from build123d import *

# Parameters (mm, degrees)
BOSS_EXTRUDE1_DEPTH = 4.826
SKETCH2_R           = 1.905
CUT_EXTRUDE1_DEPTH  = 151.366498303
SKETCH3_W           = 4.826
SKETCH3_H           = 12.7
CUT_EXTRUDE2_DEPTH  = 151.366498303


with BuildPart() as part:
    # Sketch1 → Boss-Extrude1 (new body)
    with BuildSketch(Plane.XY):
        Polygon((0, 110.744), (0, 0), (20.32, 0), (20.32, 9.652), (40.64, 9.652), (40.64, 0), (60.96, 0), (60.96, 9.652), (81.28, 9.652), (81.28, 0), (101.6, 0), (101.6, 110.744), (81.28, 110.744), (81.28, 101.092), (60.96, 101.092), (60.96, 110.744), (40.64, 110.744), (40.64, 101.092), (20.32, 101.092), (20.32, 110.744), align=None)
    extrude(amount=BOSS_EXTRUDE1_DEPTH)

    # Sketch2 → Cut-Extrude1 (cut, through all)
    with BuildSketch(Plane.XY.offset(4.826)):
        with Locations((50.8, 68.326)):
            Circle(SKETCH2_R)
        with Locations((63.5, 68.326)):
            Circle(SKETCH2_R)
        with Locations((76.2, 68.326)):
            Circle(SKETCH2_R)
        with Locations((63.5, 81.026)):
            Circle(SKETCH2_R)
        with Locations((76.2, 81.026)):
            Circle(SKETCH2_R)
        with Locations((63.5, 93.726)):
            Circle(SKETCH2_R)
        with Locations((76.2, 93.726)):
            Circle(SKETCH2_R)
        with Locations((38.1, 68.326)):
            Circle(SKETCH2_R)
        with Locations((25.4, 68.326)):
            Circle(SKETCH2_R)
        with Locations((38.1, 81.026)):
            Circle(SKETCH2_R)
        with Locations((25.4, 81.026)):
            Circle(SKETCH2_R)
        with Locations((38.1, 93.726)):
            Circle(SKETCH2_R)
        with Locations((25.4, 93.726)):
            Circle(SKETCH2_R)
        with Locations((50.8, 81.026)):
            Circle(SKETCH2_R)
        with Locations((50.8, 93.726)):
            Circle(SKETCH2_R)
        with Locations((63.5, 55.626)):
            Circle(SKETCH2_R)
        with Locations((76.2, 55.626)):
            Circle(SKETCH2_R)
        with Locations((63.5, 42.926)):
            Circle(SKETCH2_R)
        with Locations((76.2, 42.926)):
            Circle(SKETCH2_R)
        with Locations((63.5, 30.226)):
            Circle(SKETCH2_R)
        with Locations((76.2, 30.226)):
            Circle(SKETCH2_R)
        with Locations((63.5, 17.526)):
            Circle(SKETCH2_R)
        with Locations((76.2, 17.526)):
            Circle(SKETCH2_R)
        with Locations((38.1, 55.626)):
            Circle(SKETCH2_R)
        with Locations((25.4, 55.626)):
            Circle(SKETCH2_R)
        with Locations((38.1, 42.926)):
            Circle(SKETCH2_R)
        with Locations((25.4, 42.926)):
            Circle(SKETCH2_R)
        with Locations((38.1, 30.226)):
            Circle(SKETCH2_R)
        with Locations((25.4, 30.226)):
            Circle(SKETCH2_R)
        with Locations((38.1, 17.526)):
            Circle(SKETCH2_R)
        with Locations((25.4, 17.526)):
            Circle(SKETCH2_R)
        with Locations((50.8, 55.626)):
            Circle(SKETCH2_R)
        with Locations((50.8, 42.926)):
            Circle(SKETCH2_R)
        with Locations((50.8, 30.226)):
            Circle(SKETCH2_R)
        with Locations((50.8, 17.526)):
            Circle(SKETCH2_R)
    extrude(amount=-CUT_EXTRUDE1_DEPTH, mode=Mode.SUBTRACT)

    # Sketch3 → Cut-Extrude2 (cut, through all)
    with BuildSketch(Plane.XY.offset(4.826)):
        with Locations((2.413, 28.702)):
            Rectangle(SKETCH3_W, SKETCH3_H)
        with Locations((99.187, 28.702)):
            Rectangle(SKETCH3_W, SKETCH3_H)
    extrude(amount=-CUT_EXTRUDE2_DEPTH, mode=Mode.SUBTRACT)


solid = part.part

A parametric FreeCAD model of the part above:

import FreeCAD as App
import Part
import Sketcher
Q = App.Units.Quantity

doc = App.newDocument("Part")
params = doc.addObject("Spreadsheet::Sheet", "Params")
for row, (alias, value) in enumerate([
    ("sketch1_width", "0.8 in"),
    ("sketch1_height", "4.36 in"),
    ("sketch1_height2", "0.38 in"),
    ("pad1_length", "0.19 in"),
    ("sketch2_diameter", "0.15 in"),
    ("sketch3_height", "0.5 in"),
    ("sketch3_width", "0.19 in"),
], start=1):
    params.set(f"A{row}", alias)
    params.set(f"B{row}", "=" + value)
    params.setAlias(f"B{row}", alias)

body = doc.addObject("PartDesign::Body", "Body")

sketch1 = body.newObject("Sketcher::SketchObject", "Sketch")
sketch1.AttachmentSupport = (doc.getObject("XY_Plane"), [""])
sketch1.MapMode = "FlatFace"
sketch1.addGeometry(Part.LineSegment(App.Vector(0, 111, 0), App.Vector(0, 0, 0)), False)
sketch1.addGeometry(Part.LineSegment(App.Vector(0, 0, 0), App.Vector(20, 0, 0)), False)
sketch1.addGeometry(Part.LineSegment(App.Vector(20, 0, 0), App.Vector(20, 10, 0)), False)
sketch1.addGeometry(Part.LineSegment(App.Vector(20, 10, 0), App.Vector(41, 10, 0)), False)
sketch1.addGeometry(Part.LineSegment(App.Vector(41, 10, 0), App.Vector(41, 0, 0)), False)
sketch1.addGeometry(Part.LineSegment(App.Vector(41, 0, 0), App.Vector(61, 0, 0)), False)
sketch1.addGeometry(Part.LineSegment(App.Vector(61, 0, 0), App.Vector(61, 10, 0)), False)
sketch1.addGeometry(Part.LineSegment(App.Vector(61, 10, 0), App.Vector(81, 10, 0)), False)
sketch1.addGeometry(Part.LineSegment(App.Vector(81, 10, 0), App.Vector(81, 0, 0)), False)
sketch1.addGeometry(Part.LineSegment(App.Vector(81, 0, 0), App.Vector(102, 0, 0)), False)
sketch1.addGeometry(Part.LineSegment(App.Vector(102, 0, 0), App.Vector(102, 111, 0)), False)
sketch1.addGeometry(Part.LineSegment(App.Vector(102, 111, 0), App.Vector(81, 111, 0)), False)
sketch1.addGeometry(Part.LineSegment(App.Vector(81, 111, 0), App.Vector(81, 101, 0)), False)
sketch1.addGeometry(Part.LineSegment(App.Vector(81, 101, 0), App.Vector(61, 101, 0)), False)
sketch1.addGeometry(Part.LineSegment(App.Vector(61, 101, 0), App.Vector(61, 111, 0)), False)
sketch1.addGeometry(Part.LineSegment(App.Vector(61, 111, 0), App.Vector(41, 111, 0)), False)
sketch1.addGeometry(Part.LineSegment(App.Vector(41, 111, 0), App.Vector(41, 101, 0)), False)
sketch1.addGeometry(Part.LineSegment(App.Vector(41, 101, 0), App.Vector(20, 101, 0)), False)
sketch1.addGeometry(Part.LineSegment(App.Vector(20, 101, 0), App.Vector(20, 111, 0)), False)
sketch1.addGeometry(Part.LineSegment(App.Vector(20, 111, 0), App.Vector(0, 111, 0)), False)
sketch1.addConstraint(Sketcher.Constraint("Coincident", 0, 2, 1, 1))
sketch1.addConstraint(Sketcher.Constraint("Coincident", 1, 2, 2, 1))
sketch1.addConstraint(Sketcher.Constraint("Coincident", 2, 2, 3, 1))
sketch1.addConstraint(Sketcher.Constraint("Coincident", 3, 2, 4, 1))
sketch1.addConstraint(Sketcher.Constraint("Coincident", 4, 2, 5, 1))
sketch1.addConstraint(Sketcher.Constraint("Coincident", 5, 2, 6, 1))
sketch1.addConstraint(Sketcher.Constraint("Coincident", 6, 2, 7, 1))
sketch1.addConstraint(Sketcher.Constraint("Coincident", 7, 2, 8, 1))
sketch1.addConstraint(Sketcher.Constraint("Coincident", 8, 2, 9, 1))
sketch1.addConstraint(Sketcher.Constraint("Coincident", 9, 2, 10, 1))
sketch1.addConstraint(Sketcher.Constraint("Coincident", 10, 2, 11, 1))
sketch1.addConstraint(Sketcher.Constraint("Coincident", 11, 2, 12, 1))
sketch1.addConstraint(Sketcher.Constraint("Coincident", 12, 2, 13, 1))
sketch1.addConstraint(Sketcher.Constraint("Coincident", 13, 2, 14, 1))
sketch1.addConstraint(Sketcher.Constraint("Coincident", 14, 2, 15, 1))
sketch1.addConstraint(Sketcher.Constraint("Coincident", 15, 2, 16, 1))
sketch1.addConstraint(Sketcher.Constraint("Coincident", 16, 2, 17, 1))
sketch1.addConstraint(Sketcher.Constraint("Coincident", 17, 2, 18, 1))
sketch1.addConstraint(Sketcher.Constraint("Coincident", 18, 2, 19, 1))
sketch1.addConstraint(Sketcher.Constraint("Coincident", 19, 2, 0, 1))
sketch1.addConstraint(Sketcher.Constraint("Vertical", 0))
sketch1.addConstraint(Sketcher.Constraint("Horizontal", 1))
sketch1.addConstraint(Sketcher.Constraint("Vertical", 2))
sketch1.addConstraint(Sketcher.Constraint("Horizontal", 3))
sketch1.addConstraint(Sketcher.Constraint("Vertical", 4))
sketch1.addConstraint(Sketcher.Constraint("Horizontal", 5))
sketch1.addConstraint(Sketcher.Constraint("Vertical", 6))
sketch1.addConstraint(Sketcher.Constraint("Horizontal", 7))
sketch1.addConstraint(Sketcher.Constraint("Vertical", 8))
sketch1.addConstraint(Sketcher.Constraint("Horizontal", 9))
sketch1.addConstraint(Sketcher.Constraint("Vertical", 10))
sketch1.addConstraint(Sketcher.Constraint("Horizontal", 11))
sketch1.addConstraint(Sketcher.Constraint("Vertical", 12))
sketch1.addConstraint(Sketcher.Constraint("Horizontal", 13))
sketch1.addConstraint(Sketcher.Constraint("Vertical", 14))
sketch1.addConstraint(Sketcher.Constraint("Horizontal", 15))
sketch1.addConstraint(Sketcher.Constraint("Vertical", 16))
sketch1.addConstraint(Sketcher.Constraint("Horizontal", 17))
sketch1.addConstraint(Sketcher.Constraint("Vertical", 18))
sketch1.addConstraint(Sketcher.Constraint("Horizontal", 19))
sketch1.addConstraint(Sketcher.Constraint("Coincident", 0, 2, -1, 1))
sketch1.addConstraint(Sketcher.Constraint("PointOnObject", 4, 2, -1))
sketch1.addConstraint(Sketcher.Constraint("PointOnObject", 8, 2, -1))
sketch1.addConstraint(Sketcher.Constraint("Horizontal", 3, 2, 6, 2))
sketch1.addConstraint(Sketcher.Constraint("Horizontal", 11, 2, 14, 2))
sketch1.addConstraint(Sketcher.Constraint("Horizontal", 13, 2, 16, 2))
sketch1.addConstraint(Sketcher.Constraint("Horizontal", 15, 2, 18, 2))
sketch1.addConstraint(Sketcher.Constraint("Vertical", 8, 2, 11, 2))
sketch1.addConstraint(Sketcher.Constraint("Vertical", 6, 2, 13, 2))
sketch1.addConstraint(Sketcher.Constraint("Vertical", 4, 2, 15, 2))
sketch1.addConstraint(Sketcher.Constraint("Vertical", 2, 2, 17, 2))
sketch1.addConstraint(Sketcher.Constraint("Equal", 1, 3))
sketch1.addConstraint(Sketcher.Constraint("Equal", 3, 5))
sketch1.addConstraint(Sketcher.Constraint("Equal", 5, 7))
sketch1.addConstraint(Sketcher.Constraint("Equal", 7, 9))
sketch1.addConstraint(Sketcher.Constraint("Equal", 8, 12))
sketch1.addConstraint(Sketcher.Constraint("DistanceX", 1, 1, 1, 2, Q("0.8 in")))
sketch1.addConstraint(Sketcher.Constraint("DistanceY", 0, 2, 0, 1, Q("4.36 in")))
sketch1.addConstraint(Sketcher.Constraint("DistanceY", 2, 1, 2, 2, Q("0.38 in")))
sketch1.setExpression("Constraints[56]", "Params.sketch1_width")
sketch1.setExpression("Constraints[57]", "Params.sketch1_height")
sketch1.setExpression("Constraints[58]", "Params.sketch1_height2")
pad1 = body.newObject("PartDesign::Pad", "Pad")
pad1.Profile = sketch1
pad1.setExpression("Length", "Params.pad1_length")

sketch2 = body.newObject("Sketcher::SketchObject", "Sketch001")
sketch2.AttachmentSupport = (doc.getObject("XY_Plane"), [""])
sketch2.MapMode = "FlatFace"
sketch2.AttachmentOffset = App.Placement(App.Vector(0, 0, 0.19 * 25.4), App.Rotation())
sketch2.addGeometry(Part.Circle(App.Vector(50.8, 68.3, 0), App.Vector(0, 0, 1), 1.9), False)
sketch2.addGeometry(Part.Circle(App.Vector(63.5, 68.3, 0), App.Vector(0, 0, 1), 1.9), False)
sketch2.addGeometry(Part.Circle(App.Vector(76.2, 68.3, 0), App.Vector(0, 0, 1), 1.9), False)
sketch2.addGeometry(Part.Circle(App.Vector(63.5, 81, 0), App.Vector(0, 0, 1), 1.9), False)
sketch2.addGeometry(Part.Circle(App.Vector(76.2, 81, 0), App.Vector(0, 0, 1), 1.9), False)
sketch2.addGeometry(Part.Circle(App.Vector(63.5, 93.7, 0), App.Vector(0, 0, 1), 1.9), False)
sketch2.addGeometry(Part.Circle(App.Vector(76.2, 93.7, 0), App.Vector(0, 0, 1), 1.9), False)
sketch2.addGeometry(Part.Circle(App.Vector(38.1, 68.3, 0), App.Vector(0, 0, 1), 1.9), False)
sketch2.addGeometry(Part.Circle(App.Vector(25.4, 68.3, 0), App.Vector(0, 0, 1), 1.9), False)
sketch2.addGeometry(Part.Circle(App.Vector(38.1, 81, 0), App.Vector(0, 0, 1), 1.9), False)
sketch2.addGeometry(Part.Circle(App.Vector(25.4, 81, 0), App.Vector(0, 0, 1), 1.9), False)
sketch2.addGeometry(Part.Circle(App.Vector(38.1, 93.7, 0), App.Vector(0, 0, 1), 1.9), False)
sketch2.addGeometry(Part.Circle(App.Vector(25.4, 93.7, 0), App.Vector(0, 0, 1), 1.9), False)
sketch2.addGeometry(Part.Circle(App.Vector(50.8, 81, 0), App.Vector(0, 0, 1), 1.9), False)
sketch2.addGeometry(Part.Circle(App.Vector(50.8, 93.7, 0), App.Vector(0, 0, 1), 1.9), False)
sketch2.addGeometry(Part.Circle(App.Vector(63.5, 55.6, 0), App.Vector(0, 0, 1), 1.9), False)
sketch2.addGeometry(Part.Circle(App.Vector(76.2, 55.6, 0), App.Vector(0, 0, 1), 1.9), False)
sketch2.addGeometry(Part.Circle(App.Vector(63.5, 42.9, 0), App.Vector(0, 0, 1), 1.9), False)
sketch2.addGeometry(Part.Circle(App.Vector(76.2, 42.9, 0), App.Vector(0, 0, 1), 1.9), False)
sketch2.addGeometry(Part.Circle(App.Vector(63.5, 30.2, 0), App.Vector(0, 0, 1), 1.9), False)
sketch2.addGeometry(Part.Circle(App.Vector(76.2, 30.2, 0), App.Vector(0, 0, 1), 1.9), False)
sketch2.addGeometry(Part.Circle(App.Vector(63.5, 17.5, 0), App.Vector(0, 0, 1), 1.9), False)
sketch2.addGeometry(Part.Circle(App.Vector(76.2, 17.5, 0), App.Vector(0, 0, 1), 1.9), False)
sketch2.addGeometry(Part.Circle(App.Vector(38.1, 55.6, 0), App.Vector(0, 0, 1), 1.9), False)
sketch2.addGeometry(Part.Circle(App.Vector(25.4, 55.6, 0), App.Vector(0, 0, 1), 1.9), False)
sketch2.addGeometry(Part.Circle(App.Vector(38.1, 42.9, 0), App.Vector(0, 0, 1), 1.9), False)
sketch2.addGeometry(Part.Circle(App.Vector(25.4, 42.9, 0), App.Vector(0, 0, 1), 1.9), False)
sketch2.addGeometry(Part.Circle(App.Vector(38.1, 30.2, 0), App.Vector(0, 0, 1), 1.9), False)
sketch2.addGeometry(Part.Circle(App.Vector(25.4, 30.2, 0), App.Vector(0, 0, 1), 1.9), False)
sketch2.addGeometry(Part.Circle(App.Vector(38.1, 17.5, 0), App.Vector(0, 0, 1), 1.9), False)
sketch2.addGeometry(Part.Circle(App.Vector(25.4, 17.5, 0), App.Vector(0, 0, 1), 1.9), False)
sketch2.addGeometry(Part.Circle(App.Vector(50.8, 55.6, 0), App.Vector(0, 0, 1), 1.9), False)
sketch2.addGeometry(Part.Circle(App.Vector(50.8, 42.9, 0), App.Vector(0, 0, 1), 1.9), False)
sketch2.addGeometry(Part.Circle(App.Vector(50.8, 30.2, 0), App.Vector(0, 0, 1), 1.9), False)
sketch2.addGeometry(Part.Circle(App.Vector(50.8, 17.5, 0), App.Vector(0, 0, 1), 1.9), False)
sketch2.addConstraint(Sketcher.Constraint("Equal", 0, 1))
sketch2.addConstraint(Sketcher.Constraint("Equal", 1, 2))
sketch2.addConstraint(Sketcher.Constraint("Equal", 2, 3))
sketch2.addConstraint(Sketcher.Constraint("Equal", 3, 4))
sketch2.addConstraint(Sketcher.Constraint("Equal", 4, 5))
sketch2.addConstraint(Sketcher.Constraint("Equal", 5, 6))
sketch2.addConstraint(Sketcher.Constraint("Equal", 6, 7))
sketch2.addConstraint(Sketcher.Constraint("Equal", 7, 8))
sketch2.addConstraint(Sketcher.Constraint("Equal", 8, 9))
sketch2.addConstraint(Sketcher.Constraint("Equal", 9, 10))
sketch2.addConstraint(Sketcher.Constraint("Equal", 10, 11))
sketch2.addConstraint(Sketcher.Constraint("Equal", 11, 12))
sketch2.addConstraint(Sketcher.Constraint("Equal", 12, 13))
sketch2.addConstraint(Sketcher.Constraint("Equal", 13, 14))
sketch2.addConstraint(Sketcher.Constraint("Equal", 14, 15))
sketch2.addConstraint(Sketcher.Constraint("Equal", 15, 16))
sketch2.addConstraint(Sketcher.Constraint("Equal", 16, 17))
sketch2.addConstraint(Sketcher.Constraint("Equal", 17, 18))
sketch2.addConstraint(Sketcher.Constraint("Equal", 18, 19))
sketch2.addConstraint(Sketcher.Constraint("Equal", 19, 20))
sketch2.addConstraint(Sketcher.Constraint("Equal", 20, 21))
sketch2.addConstraint(Sketcher.Constraint("Equal", 21, 22))
sketch2.addConstraint(Sketcher.Constraint("Equal", 22, 23))
sketch2.addConstraint(Sketcher.Constraint("Equal", 23, 24))
sketch2.addConstraint(Sketcher.Constraint("Equal", 24, 25))
sketch2.addConstraint(Sketcher.Constraint("Equal", 25, 26))
sketch2.addConstraint(Sketcher.Constraint("Equal", 26, 27))
sketch2.addConstraint(Sketcher.Constraint("Equal", 27, 28))
sketch2.addConstraint(Sketcher.Constraint("Equal", 28, 29))
sketch2.addConstraint(Sketcher.Constraint("Equal", 29, 30))
sketch2.addConstraint(Sketcher.Constraint("Equal", 30, 31))
sketch2.addConstraint(Sketcher.Constraint("Equal", 31, 32))
sketch2.addConstraint(Sketcher.Constraint("Equal", 32, 33))
sketch2.addConstraint(Sketcher.Constraint("Equal", 33, 34))
sketch2.addConstraint(Sketcher.Constraint("Horizontal", 0, 3, 1, 3))
sketch2.addConstraint(Sketcher.Constraint("Horizontal", 1, 3, 2, 3))
sketch2.addConstraint(Sketcher.Constraint("Horizontal", 3, 3, 4, 3))
sketch2.addConstraint(Sketcher.Constraint("Horizontal", 5, 3, 6, 3))
sketch2.addConstraint(Sketcher.Constraint("Horizontal", 2, 3, 7, 3))
sketch2.addConstraint(Sketcher.Constraint("Horizontal", 7, 3, 8, 3))
sketch2.addConstraint(Sketcher.Constraint("Horizontal", 4, 3, 9, 3))
sketch2.addConstraint(Sketcher.Constraint("Horizontal", 9, 3, 10, 3))
sketch2.addConstraint(Sketcher.Constraint("Horizontal", 6, 3, 11, 3))
sketch2.addConstraint(Sketcher.Constraint("Horizontal", 11, 3, 12, 3))
sketch2.addConstraint(Sketcher.Constraint("Horizontal", 10, 3, 13, 3))
sketch2.addConstraint(Sketcher.Constraint("Horizontal", 12, 3, 14, 3))
sketch2.addConstraint(Sketcher.Constraint("Horizontal", 15, 3, 16, 3))
sketch2.addConstraint(Sketcher.Constraint("Horizontal", 17, 3, 18, 3))
sketch2.addConstraint(Sketcher.Constraint("Horizontal", 19, 3, 20, 3))
sketch2.addConstraint(Sketcher.Constraint("Horizontal", 21, 3, 22, 3))
sketch2.addConstraint(Sketcher.Constraint("Horizontal", 16, 3, 23, 3))
sketch2.addConstraint(Sketcher.Constraint("Horizontal", 23, 3, 24, 3))
sketch2.addConstraint(Sketcher.Constraint("Horizontal", 18, 3, 25, 3))
sketch2.addConstraint(Sketcher.Constraint("Horizontal", 25, 3, 26, 3))
sketch2.addConstraint(Sketcher.Constraint("Horizontal", 20, 3, 27, 3))
sketch2.addConstraint(Sketcher.Constraint("Horizontal", 27, 3, 28, 3))
sketch2.addConstraint(Sketcher.Constraint("Horizontal", 22, 3, 29, 3))
sketch2.addConstraint(Sketcher.Constraint("Horizontal", 29, 3, 30, 3))
sketch2.addConstraint(Sketcher.Constraint("Horizontal", 24, 3, 31, 3))
sketch2.addConstraint(Sketcher.Constraint("Horizontal", 26, 3, 32, 3))
sketch2.addConstraint(Sketcher.Constraint("Horizontal", 28, 3, 33, 3))
sketch2.addConstraint(Sketcher.Constraint("Horizontal", 30, 3, 34, 3))
sketch2.addConstraint(Sketcher.Constraint("Vertical", 1, 3, 3, 3))
sketch2.addConstraint(Sketcher.Constraint("Vertical", 2, 3, 4, 3))
sketch2.addConstraint(Sketcher.Constraint("Vertical", 3, 3, 5, 3))
sketch2.addConstraint(Sketcher.Constraint("Vertical", 4, 3, 6, 3))
sketch2.addConstraint(Sketcher.Constraint("Vertical", 7, 3, 9, 3))
sketch2.addConstraint(Sketcher.Constraint("Vertical", 8, 3, 10, 3))
sketch2.addConstraint(Sketcher.Constraint("Vertical", 9, 3, 11, 3))
sketch2.addConstraint(Sketcher.Constraint("Vertical", 10, 3, 12, 3))
sketch2.addConstraint(Sketcher.Constraint("Vertical", 0, 3, 13, 3))
sketch2.addConstraint(Sketcher.Constraint("Vertical", 13, 3, 14, 3))
sketch2.addConstraint(Sketcher.Constraint("Vertical", 5, 3, 15, 3))
sketch2.addConstraint(Sketcher.Constraint("Vertical", 6, 3, 16, 3))
sketch2.addConstraint(Sketcher.Constraint("Vertical", 15, 3, 17, 3))
sketch2.addConstraint(Sketcher.Constraint("Vertical", 16, 3, 18, 3))
sketch2.addConstraint(Sketcher.Constraint("Vertical", 17, 3, 19, 3))
sketch2.addConstraint(Sketcher.Constraint("Vertical", 18, 3, 20, 3))
sketch2.addConstraint(Sketcher.Constraint("Vertical", 19, 3, 21, 3))
sketch2.addConstraint(Sketcher.Constraint("Vertical", 20, 3, 22, 3))
sketch2.addConstraint(Sketcher.Constraint("Vertical", 11, 3, 23, 3))
sketch2.addConstraint(Sketcher.Constraint("Vertical", 12, 3, 24, 3))
sketch2.addConstraint(Sketcher.Constraint("Vertical", 23, 3, 25, 3))
sketch2.addConstraint(Sketcher.Constraint("Vertical", 24, 3, 26, 3))
sketch2.addConstraint(Sketcher.Constraint("Vertical", 25, 3, 27, 3))
sketch2.addConstraint(Sketcher.Constraint("Vertical", 26, 3, 28, 3))
sketch2.addConstraint(Sketcher.Constraint("Vertical", 27, 3, 29, 3))
sketch2.addConstraint(Sketcher.Constraint("Vertical", 28, 3, 30, 3))
sketch2.addConstraint(Sketcher.Constraint("Vertical", 14, 3, 31, 3))
sketch2.addConstraint(Sketcher.Constraint("Vertical", 31, 3, 32, 3))
sketch2.addConstraint(Sketcher.Constraint("Vertical", 32, 3, 33, 3))
sketch2.addConstraint(Sketcher.Constraint("Vertical", 33, 3, 34, 3))
sketch2.addConstraint(Sketcher.Constraint("Diameter", 0, Q("0.15 in")))
sketch2.addConstraint(Sketcher.Constraint("DistanceX", -1, 1, 0, 3, Q("2 in")))
sketch2.addConstraint(Sketcher.Constraint("DistanceX", -1, 1, 2, 3, Q("3 in")))
sketch2.addConstraint(Sketcher.Constraint("DistanceX", -1, 1, 8, 3, Q("1 in")))
sketch2.addConstraint(Sketcher.Constraint("DistanceY", 1, 3, 5, 3, Q("1 in")))
sketch2.addConstraint(Sketcher.Constraint("DistanceX", 7, 3, 1, 3, Q("1 in")))
sketch2.addConstraint(Sketcher.Constraint("DistanceY", 15, 3, 3, 3, Q("1 in")))
sketch2.addConstraint(Sketcher.Constraint("DistanceY", 17, 3, 1, 3, Q("1 in")))
sketch2.addConstraint(Sketcher.Constraint("DistanceY", 19, 3, 15, 3, Q("1 in")))
sketch2.addConstraint(Sketcher.Constraint("DistanceY", 21, 3, 17, 3, Q("1 in")))
sketch2.addConstraint(Sketcher.Constraint("DistanceX", -1, 1, 1, 3, Q("2.5 in")))
sketch2.addConstraint(Sketcher.Constraint("DistanceY", 1, 3, 3, 3, Q("0.5 in")))
sketch2.addConstraint(Sketcher.Constraint("DistanceY", -1, 1, 0, 3, Q("2.69 in")))
sketch2.setExpression("Constraints[92]", "Params.sketch2_diameter")
pocket1 = body.newObject("PartDesign::Pocket", "Pocket")
pocket1.Profile = sketch2
pocket1.Type = "ThroughAll"

sketch3 = body.newObject("Sketcher::SketchObject", "Sketch002")
sketch3.AttachmentSupport = (doc.getObject("XY_Plane"), [""])
sketch3.MapMode = "FlatFace"
sketch3.AttachmentOffset = App.Placement(App.Vector(0, 0, 0.19 * 25.4), App.Rotation())
sketch3.addGeometry(Part.LineSegment(App.Vector(0, 35.1, 0), App.Vector(0, 22.4, 0)), False)
sketch3.addGeometry(Part.LineSegment(App.Vector(0, 22.4, 0), App.Vector(4.8, 22.4, 0)), False)
sketch3.addGeometry(Part.LineSegment(App.Vector(4.8, 22.4, 0), App.Vector(4.8, 35.1, 0)), False)
sketch3.addGeometry(Part.LineSegment(App.Vector(4.8, 35.1, 0), App.Vector(0, 35.1, 0)), False)
sketch3.addGeometry(Part.LineSegment(App.Vector(96.8, 35.1, 0), App.Vector(96.8, 22.4, 0)), False)
sketch3.addGeometry(Part.LineSegment(App.Vector(96.8, 22.4, 0), App.Vector(101.6, 22.4, 0)), False)
sketch3.addGeometry(Part.LineSegment(App.Vector(101.6, 22.4, 0), App.Vector(101.6, 35.1, 0)), False)
sketch3.addGeometry(Part.LineSegment(App.Vector(101.6, 35.1, 0), App.Vector(96.8, 35.1, 0)), False)
sketch3.addConstraint(Sketcher.Constraint("Coincident", 0, 2, 1, 1))
sketch3.addConstraint(Sketcher.Constraint("Coincident", 1, 2, 2, 1))
sketch3.addConstraint(Sketcher.Constraint("Coincident", 2, 2, 3, 1))
sketch3.addConstraint(Sketcher.Constraint("Coincident", 3, 2, 0, 1))
sketch3.addConstraint(Sketcher.Constraint("Coincident", 4, 2, 5, 1))
sketch3.addConstraint(Sketcher.Constraint("Coincident", 5, 2, 6, 1))
sketch3.addConstraint(Sketcher.Constraint("Coincident", 6, 2, 7, 1))
sketch3.addConstraint(Sketcher.Constraint("Coincident", 7, 2, 4, 1))
sketch3.addConstraint(Sketcher.Constraint("Vertical", 0))
sketch3.addConstraint(Sketcher.Constraint("Horizontal", 1))
sketch3.addConstraint(Sketcher.Constraint("Vertical", 2))
sketch3.addConstraint(Sketcher.Constraint("Horizontal", 3))
sketch3.addConstraint(Sketcher.Constraint("Vertical", 4))
sketch3.addConstraint(Sketcher.Constraint("Horizontal", 5))
sketch3.addConstraint(Sketcher.Constraint("Vertical", 6))
sketch3.addConstraint(Sketcher.Constraint("Horizontal", 7))
sketch3.addConstraint(Sketcher.Constraint("PointOnObject", 0, 2, -2))
sketch3.addConstraint(Sketcher.Constraint("Horizontal", 1, 2, 4, 2))
sketch3.addConstraint(Sketcher.Constraint("Horizontal", 3, 2, 6, 2))
sketch3.addConstraint(Sketcher.Constraint("Equal", 3, 5))
sketch3.addConstraint(Sketcher.Constraint("DistanceY", 0, 2, 0, 1, Q("0.5 in")))
sketch3.addConstraint(Sketcher.Constraint("DistanceX", -1, 1, 5, 2, Q("4 in")))
sketch3.addConstraint(Sketcher.Constraint("DistanceX", 1, 1, 1, 2, Q("0.19 in")))
sketch3.addConstraint(Sketcher.Constraint("DistanceY", -1, 1, 0, 2, Q("0.88 in")))
sketch3.setExpression("Constraints[20]", "Params.sketch3_height")
sketch3.setExpression("Constraints[22]", "Params.sketch3_width")
pocket2 = body.newObject("PartDesign::Pocket", "Pocket001")
pocket2.Profile = sketch3
pocket2.Type = "ThroughAll"

doc.recompute()
